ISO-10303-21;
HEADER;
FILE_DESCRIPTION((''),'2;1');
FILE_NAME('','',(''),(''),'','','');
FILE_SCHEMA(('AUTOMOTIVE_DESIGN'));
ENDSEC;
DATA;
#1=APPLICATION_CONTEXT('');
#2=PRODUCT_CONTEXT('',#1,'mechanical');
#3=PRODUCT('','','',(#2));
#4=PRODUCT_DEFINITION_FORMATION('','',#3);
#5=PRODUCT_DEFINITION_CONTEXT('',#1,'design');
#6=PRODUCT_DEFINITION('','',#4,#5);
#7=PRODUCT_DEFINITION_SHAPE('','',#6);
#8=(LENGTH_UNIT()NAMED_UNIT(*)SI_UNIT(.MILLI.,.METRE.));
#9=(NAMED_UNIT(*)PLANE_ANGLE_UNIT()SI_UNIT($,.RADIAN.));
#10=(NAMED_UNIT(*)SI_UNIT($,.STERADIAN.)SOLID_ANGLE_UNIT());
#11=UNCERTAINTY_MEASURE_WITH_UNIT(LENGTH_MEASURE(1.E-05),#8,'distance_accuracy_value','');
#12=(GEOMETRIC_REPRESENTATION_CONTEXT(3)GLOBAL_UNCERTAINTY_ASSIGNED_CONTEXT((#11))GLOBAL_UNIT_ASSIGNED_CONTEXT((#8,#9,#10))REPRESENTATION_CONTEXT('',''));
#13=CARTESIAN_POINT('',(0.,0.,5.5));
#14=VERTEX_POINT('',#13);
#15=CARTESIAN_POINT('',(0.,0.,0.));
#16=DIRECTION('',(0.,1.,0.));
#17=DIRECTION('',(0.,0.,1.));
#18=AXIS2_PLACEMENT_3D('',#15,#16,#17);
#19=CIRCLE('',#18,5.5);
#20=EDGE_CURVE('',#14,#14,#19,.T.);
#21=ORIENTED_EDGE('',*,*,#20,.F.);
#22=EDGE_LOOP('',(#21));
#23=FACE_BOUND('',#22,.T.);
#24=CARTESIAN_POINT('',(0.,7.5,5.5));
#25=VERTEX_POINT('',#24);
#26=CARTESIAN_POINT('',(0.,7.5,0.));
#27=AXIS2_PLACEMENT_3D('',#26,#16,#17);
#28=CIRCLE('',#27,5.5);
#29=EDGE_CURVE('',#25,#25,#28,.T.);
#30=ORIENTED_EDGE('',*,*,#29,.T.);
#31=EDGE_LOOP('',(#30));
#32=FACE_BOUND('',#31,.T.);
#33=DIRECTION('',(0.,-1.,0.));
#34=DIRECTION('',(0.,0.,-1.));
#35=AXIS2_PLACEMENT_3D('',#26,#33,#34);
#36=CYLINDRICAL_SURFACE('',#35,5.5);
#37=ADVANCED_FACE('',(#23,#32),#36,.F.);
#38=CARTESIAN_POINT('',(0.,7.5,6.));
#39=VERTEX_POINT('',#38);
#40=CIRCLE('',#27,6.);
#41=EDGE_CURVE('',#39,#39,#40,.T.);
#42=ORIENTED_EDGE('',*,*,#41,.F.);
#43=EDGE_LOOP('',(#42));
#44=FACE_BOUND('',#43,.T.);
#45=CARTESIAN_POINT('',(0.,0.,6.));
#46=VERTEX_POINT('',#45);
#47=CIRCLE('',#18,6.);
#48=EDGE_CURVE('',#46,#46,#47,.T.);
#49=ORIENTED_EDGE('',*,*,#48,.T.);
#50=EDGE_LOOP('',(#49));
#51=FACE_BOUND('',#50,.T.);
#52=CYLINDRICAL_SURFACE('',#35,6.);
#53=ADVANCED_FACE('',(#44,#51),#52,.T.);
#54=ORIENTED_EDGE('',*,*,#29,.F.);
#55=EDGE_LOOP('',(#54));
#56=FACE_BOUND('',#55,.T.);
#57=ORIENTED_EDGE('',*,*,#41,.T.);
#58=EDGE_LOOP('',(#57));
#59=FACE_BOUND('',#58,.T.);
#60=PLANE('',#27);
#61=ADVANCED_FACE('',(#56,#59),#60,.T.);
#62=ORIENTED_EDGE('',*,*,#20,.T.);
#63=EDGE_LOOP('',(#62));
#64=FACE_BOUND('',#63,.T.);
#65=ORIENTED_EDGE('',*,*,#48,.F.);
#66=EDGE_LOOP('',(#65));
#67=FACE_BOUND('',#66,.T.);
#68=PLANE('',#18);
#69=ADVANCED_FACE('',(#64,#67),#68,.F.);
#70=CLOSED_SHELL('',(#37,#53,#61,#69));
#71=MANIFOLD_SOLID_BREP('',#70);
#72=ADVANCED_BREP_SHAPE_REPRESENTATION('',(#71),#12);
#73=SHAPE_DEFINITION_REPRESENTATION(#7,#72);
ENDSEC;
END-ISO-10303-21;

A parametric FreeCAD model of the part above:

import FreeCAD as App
import Part
import Sketcher

V = App.Vector
Q = App.Units.Quantity

doc = App.newDocument("Part")
body = doc.addObject("PartDesign::Body", "Body")

sketch1 = body.newObject("Sketcher::SketchObject", "Sketch")
sketch1.AttachmentSupport = (doc.getObject("XZ_Plane"), [""])
sketch1.MapMode = "FlatFace"
sketch1.addGeometry([
    Part.Circle(V(0, 0, 0), V(0, 0, 1), 6),
    Part.Circle(V(0, 0, 0), V(0, 0, 1), 6),
], False)
sketch1.addConstraint([
    Sketcher.Constraint("Coincident", 0, 3, -1, 1),
    Sketcher.Constraint("Coincident", 1, 3, -1, 1),
    Sketcher.Constraint("Diameter", 0, Q("12 mm")),
    Sketcher.Constraint("Diameter", 1, Q("11 mm")),
])
pad1 = body.newObject("PartDesign::Pad", "Pad")
pad1.Profile = sketch1
pad1.Length = 7.5
pad1.Reversed = True

doc.recompute()
